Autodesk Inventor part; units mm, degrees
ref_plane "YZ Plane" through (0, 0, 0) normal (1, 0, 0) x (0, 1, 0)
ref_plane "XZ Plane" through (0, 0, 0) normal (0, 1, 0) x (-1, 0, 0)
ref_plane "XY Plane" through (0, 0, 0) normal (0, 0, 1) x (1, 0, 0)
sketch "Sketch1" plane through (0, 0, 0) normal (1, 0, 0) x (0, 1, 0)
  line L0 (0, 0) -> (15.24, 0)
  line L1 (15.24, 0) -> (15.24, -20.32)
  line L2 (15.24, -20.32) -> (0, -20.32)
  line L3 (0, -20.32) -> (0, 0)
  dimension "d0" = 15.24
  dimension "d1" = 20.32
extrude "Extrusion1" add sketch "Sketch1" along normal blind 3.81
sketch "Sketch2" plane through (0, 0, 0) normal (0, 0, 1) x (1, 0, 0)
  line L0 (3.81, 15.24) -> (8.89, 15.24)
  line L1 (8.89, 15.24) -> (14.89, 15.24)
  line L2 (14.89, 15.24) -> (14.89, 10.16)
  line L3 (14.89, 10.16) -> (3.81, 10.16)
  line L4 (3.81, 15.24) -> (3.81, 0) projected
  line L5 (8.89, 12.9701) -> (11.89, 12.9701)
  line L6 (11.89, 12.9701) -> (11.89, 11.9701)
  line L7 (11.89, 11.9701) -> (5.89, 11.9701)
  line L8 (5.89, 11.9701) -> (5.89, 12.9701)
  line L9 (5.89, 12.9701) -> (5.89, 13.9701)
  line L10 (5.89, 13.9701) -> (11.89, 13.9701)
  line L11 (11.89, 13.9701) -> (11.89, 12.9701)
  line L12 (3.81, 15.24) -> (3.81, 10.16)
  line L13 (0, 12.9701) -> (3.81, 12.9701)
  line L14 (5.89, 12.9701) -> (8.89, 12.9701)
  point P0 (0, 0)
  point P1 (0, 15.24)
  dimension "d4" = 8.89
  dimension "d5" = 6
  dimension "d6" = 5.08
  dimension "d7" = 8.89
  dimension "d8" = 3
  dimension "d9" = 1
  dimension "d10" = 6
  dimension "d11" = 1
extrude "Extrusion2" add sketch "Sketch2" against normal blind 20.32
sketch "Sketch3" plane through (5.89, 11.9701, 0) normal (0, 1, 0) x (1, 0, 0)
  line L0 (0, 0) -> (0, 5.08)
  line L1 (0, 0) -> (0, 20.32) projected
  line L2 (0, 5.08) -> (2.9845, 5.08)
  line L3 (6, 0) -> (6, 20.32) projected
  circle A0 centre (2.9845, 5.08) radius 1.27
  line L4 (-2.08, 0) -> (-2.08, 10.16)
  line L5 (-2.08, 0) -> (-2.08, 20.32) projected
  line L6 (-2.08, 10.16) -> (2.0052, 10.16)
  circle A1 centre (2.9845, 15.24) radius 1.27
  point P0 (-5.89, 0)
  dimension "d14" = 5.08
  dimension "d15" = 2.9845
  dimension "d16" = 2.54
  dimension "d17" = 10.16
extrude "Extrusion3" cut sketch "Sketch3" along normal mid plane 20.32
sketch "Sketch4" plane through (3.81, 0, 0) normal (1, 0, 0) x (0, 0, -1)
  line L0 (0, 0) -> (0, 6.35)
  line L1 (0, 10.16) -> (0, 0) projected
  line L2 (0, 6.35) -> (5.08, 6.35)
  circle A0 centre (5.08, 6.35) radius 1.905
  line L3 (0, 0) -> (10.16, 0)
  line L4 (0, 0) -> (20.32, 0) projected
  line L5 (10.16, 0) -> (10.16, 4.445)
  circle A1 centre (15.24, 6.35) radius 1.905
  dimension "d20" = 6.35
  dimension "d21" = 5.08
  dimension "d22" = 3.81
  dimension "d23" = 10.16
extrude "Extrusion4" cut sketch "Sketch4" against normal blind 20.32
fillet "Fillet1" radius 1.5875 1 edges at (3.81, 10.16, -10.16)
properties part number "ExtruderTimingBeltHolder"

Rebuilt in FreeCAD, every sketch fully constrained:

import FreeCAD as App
import Part
import Sketcher
Q = App.Units.Quantity


def edges_at(feature, points):
    """Names of the edges that pass closest to the given points."""
    edges = feature.Shape.Edges
    near = lambda p: min(range(len(edges)), key=lambda i: edges[i].distToShape(Part.Vertex(*p))[0])
    return sorted({f"Edge{near(p) + 1}" for p in points})

doc = App.newDocument("Part")
params = doc.addObject("Spreadsheet::Sheet", "Params")
for row, (alias, value) in enumerate([
    ("sketch1_width", "0.6 in"),
    ("sketch1_height", "0.8 in"),
    ("pad1_length", "0.15 in"),
    ("sketch2_height", "0.2 in"),
    ("pad2_length", "0.8 in"),
    ("sketch3_diameter", "0.1 in"),
    ("pocket1_length", "0.8 in"),
    ("sketch4_diameter", "0.15 in"),
    ("pocket2_length", "0.8 in"),
    ("fillet_radius", "0.0625 in"),
], start=1):
    params.set(f"A{row}", alias)
    params.set(f"B{row}", "=" + value)
    params.setAlias(f"B{row}", alias)

body = doc.addObject("PartDesign::Body", "Body")

# Sketch on YZ plane
sketch1 = doc.addObject("Sketcher::SketchObject", "Sketch")
body.addObject(sketch1)
sketch1.AttachmentSupport = (doc.YZ_Plane, [""])
sketch1.MapMode = "FlatFace"
sketch1.addGeometry(Part.LineSegment(App.Vector(15, 0, 0), App.Vector(0, 0, 0)), False)
sketch1.addGeometry(Part.LineSegment(App.Vector(0, 0, 0), App.Vector(0, -20, 0)), False)
sketch1.addGeometry(Part.LineSegment(App.Vector(0, -20, 0), App.Vector(15, -20, 0)), False)
sketch1.addGeometry(Part.LineSegment(App.Vector(15, -20, 0), App.Vector(15, 0, 0)), False)
sketch1.addConstraint(Sketcher.Constraint("Coincident", 0, 2, 1, 1))
sketch1.addConstraint(Sketcher.Constraint("Coincident", 1, 2, 2, 1))
sketch1.addConstraint(Sketcher.Constraint("Coincident", 2, 2, 3, 1))
sketch1.addConstraint(Sketcher.Constraint("Coincident", 3, 2, 0, 1))
sketch1.addConstraint(Sketcher.Constraint("Horizontal", 0))
sketch1.addConstraint(Sketcher.Constraint("Vertical", 1))
sketch1.addConstraint(Sketcher.Constraint("Horizontal", 2))
sketch1.addConstraint(Sketcher.Constraint("Vertical", 3))
sketch1.addConstraint(Sketcher.Constraint("Coincident", 0, 2, -1, 1))
sketch1.addConstraint(Sketcher.Constraint("DistanceX", 0, 2, 0, 1, Q("0.6 in")))
sketch1.addConstraint(Sketcher.Constraint("DistanceY", 1, 2, 1, 1, Q("0.8 in")))
sketch1.setExpression("Constraints[9]", "Params.sketch1_width")
sketch1.setExpression("Constraints[10]", "Params.sketch1_height")
pad1 = doc.addObject("PartDesign::Pad", "Pad")
body.addObject(pad1)
pad1.Profile = sketch1
pad1.setExpression("Length", "Params.pad1_length")

# Sketch on XY plane
sketch2 = doc.addObject("Sketcher::SketchObject", "Sketch001")
body.addObject(sketch2)
sketch2.AttachmentSupport = (doc.XY_Plane, [""])
sketch2.MapMode = "FlatFace"
sketch2.addGeometry(Part.LineSegment(App.Vector(14.9, 15.2, 0), App.Vector(3.8, 15.2, 0)), False)
sketch2.addGeometry(Part.LineSegment(App.Vector(3.8, 15.2, 0), App.Vector(3.8, 10.2, 0)), False)
sketch2.addGeometry(Part.LineSegment(App.Vector(3.8, 10.2, 0), App.Vector(14.9, 10.2, 0)), False)
sketch2.addGeometry(Part.LineSegment(App.Vector(14.9, 10.2, 0), App.Vector(14.9, 15.2, 0)), False)
sketch2.addGeometry(Part.LineSegment(App.Vector(11.9, 14, 0), App.Vector(11.9, 12, 0)), False)
sketch2.addGeometry(Part.LineSegment(App.Vector(11.9, 12, 0), App.Vector(5.9, 12, 0)), False)
sketch2.addGeometry(Part.LineSegment(App.Vector(5.9, 12, 0), App.Vector(5.9, 14, 0)), False)
sketch2.addGeometry(Part.LineSegment(App.Vector(5.9, 14, 0), App.Vector(11.9, 14, 0)), False)
sketch2.addConstraint(Sketcher.Constraint("Coincident", 0, 2, 1, 1))
sketch2.addConstraint(Sketcher.Constraint("Coincident", 1, 2, 2, 1))
sketch2.addConstraint(Sketcher.Constraint("Coincident", 2, 2, 3, 1))
sketch2.addConstraint(Sketcher.Constraint("Coincident", 3, 2, 0, 1))
sketch2.addConstraint(Sketcher.Constraint("Coincident", 4, 2, 5, 1))
sketch2.addConstraint(Sketcher.Constraint("Coincident", 5, 2, 6, 1))
sketch2.addConstraint(Sketcher.Constraint("Coincident", 6, 2, 7, 1))
sketch2.addConstraint(Sketcher.Constraint("Coincident", 7, 2, 4, 1))
sketch2.addConstraint(Sketcher.Constraint("Horizontal", 0))
sketch2.addConstraint(Sketcher.Constraint("Vertical", 1))
sketch2.addConstraint(Sketcher.Constraint("Horizontal", 2))
sketch2.addConstraint(Sketcher.Constraint("Vertical", 3))
sketch2.addConstraint(Sketcher.Constraint("Vertical", 4))
sketch2.addConstraint(Sketcher.Constraint("Horizontal", 5))
sketch2.addConstraint(Sketcher.Constraint("Vertical", 6))
sketch2.addConstraint(Sketcher.Constraint("Horizontal", 7))
sketch2.addConstraint(Sketcher.Constraint("DistanceY", 1, 2, 1, 1, Q("0.2 in")))
sketch2.addConstraint(Sketcher.Constraint("DistanceX", 5, 2, 5, 1, 6.0))
sketch2.addConstraint(Sketcher.Constraint("DistanceY", -1, 1, 0, 2, Q("0.6 in")))
sketch2.addConstraint(Sketcher.Constraint("DistanceX", 4, 2, 2, 2, Q("0.1181 in")))
sketch2.addConstraint(Sketcher.Constraint("DistanceX", -1, 1, 0, 2, Q("0.15 in")))
sketch2.addConstraint(Sketcher.Constraint("DistanceY", -1, 1, 6, 2, Q("0.55 in")))
sketch2.addConstraint(Sketcher.Constraint("DistanceX", 0, 2, 0, 1, 11.08))
sketch2.addConstraint(Sketcher.Constraint("DistanceY", 4, 2, 4, 1, 2.0))
sketch2.setExpression("Constraints[16]", "Params.sketch2_height")
pad2 = doc.addObject("PartDesign::Pad", "Pad001")
body.addObject(pad2)
pad2.Profile = sketch2
pad2.setExpression("Length", "Params.pad2_length")
pad2.Reversed = True

# Sketch on XZ plane
sketch3 = doc.addObject("Sketcher::SketchObject", "Sketch002")
body.addObject(sketch3)
sketch3.AttachmentSupport = (doc.XZ_Plane, [""])
sketch3.MapMode = "FlatFace"
sketch3.AttachmentOffset = App.Placement(App.Vector(0, 0, -11.9701), App.Rotation())
sketch3.addGeometry(Part.Circle(App.Vector(8.9, -5.1, 0), App.Vector(0, 0, 1), 1.3), False)
sketch3.addGeometry(Part.Circle(App.Vector(8.9, -15.2, 0), App.Vector(0, 0, 1), 1.3), False)
sketch3.addConstraint(Sketcher.Constraint("Equal", 0, 1))
sketch3.addConstraint(Sketcher.Constraint("Vertical", 0, 3, 1, 3))
sketch3.addConstraint(Sketcher.Constraint("Diameter", 0, Q("0.1 in")))
sketch3.addConstraint(Sketcher.Constraint("DistanceY", 0, 3, -1, 1, Q("0.2 in")))
sketch3.addConstraint(Sketcher.Constraint("DistanceY", 1, 3, 0, 3, Q("0.4 in")))
sketch3.addConstraint(Sketcher.Constraint("DistanceX", -1, 1, 0, 3, Q("0.3494 in")))
sketch3.setExpression("Constraints[2]", "Params.sketch3_diameter")
pocket1 = doc.addObject("PartDesign::Pocket", "Pocket")
body.addObject(pocket1)
pocket1.Profile = sketch3
pocket1.setExpression("Length", "Params.pocket1_length")
pocket1.Midplane = True

# Sketch on YZ plane
sketch4 = doc.addObject("Sketcher::SketchObject", "Sketch003")
body.addObject(sketch4)
sketch4.AttachmentSupport = (doc.YZ_Plane, [""])
sketch4.MapMode = "FlatFace"
sketch4.AttachmentOffset = App.Placement(App.Vector(0, 0, 0.15 * 25.4), App.Rotation())
sketch4.addGeometry(Part.Circle(App.Vector(6.3, -5.1, 0), App.Vector(0, 0, 1), 1.9), False)
sketch4.addGeometry(Part.Circle(App.Vector(6.3, -15.2, 0), App.Vector(0, 0, 1), 1.9), False)
sketch4.addConstraint(Sketcher.Constraint("Equal", 0, 1))
sketch4.addConstraint(Sketcher.Constraint("Vertical", 0, 3, 1, 3))
sketch4.addConstraint(Sketcher.Constraint("Diameter", 0, Q("0.15 in")))
sketch4.addConstraint(Sketcher.Constraint("DistanceY", 0, 3, -1, 1, Q("0.2 in")))
sketch4.addConstraint(Sketcher.Constraint("DistanceY", 1, 3, 0, 3, Q("0.4 in")))
sketch4.addConstraint(Sketcher.Constraint("DistanceX", -1, 1, 0, 3, Q("0.25 in")))
sketch4.setExpression("Constraints[2]", "Params.sketch4_diameter")
pocket2 = doc.addObject("PartDesign::Pocket", "Pocket001")
body.addObject(pocket2)
pocket2.Profile = sketch4
pocket2.setExpression("Length", "Params.pocket2_length")
doc.recompute()

fillet = doc.addObject("PartDesign::Fillet", "Fillet")
body.addObject(fillet)
fillet.Base = (pocket2, edges_at(pocket2, [(3.81, 10.16, -10.16)]))
fillet.setExpression("Radius", "Params.fillet_radius")

doc.recompute()
